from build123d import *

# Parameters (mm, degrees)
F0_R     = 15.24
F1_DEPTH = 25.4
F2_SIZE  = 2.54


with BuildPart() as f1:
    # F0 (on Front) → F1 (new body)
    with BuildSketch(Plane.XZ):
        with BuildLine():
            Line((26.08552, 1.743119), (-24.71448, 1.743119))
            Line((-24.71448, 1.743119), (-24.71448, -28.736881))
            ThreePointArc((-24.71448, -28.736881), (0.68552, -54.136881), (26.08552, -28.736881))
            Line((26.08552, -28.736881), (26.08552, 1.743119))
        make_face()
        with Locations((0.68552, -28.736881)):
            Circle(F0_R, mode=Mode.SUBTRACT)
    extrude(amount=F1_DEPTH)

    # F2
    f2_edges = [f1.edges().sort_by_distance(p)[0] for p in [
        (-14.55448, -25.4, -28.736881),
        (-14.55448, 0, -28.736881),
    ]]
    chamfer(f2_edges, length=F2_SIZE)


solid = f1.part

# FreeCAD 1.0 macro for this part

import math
import FreeCAD as App
import Part
import Sketcher
from FreeCAD import Vector
Q = App.Units.Quantity


def edges_at(feature, points):
    """Names of the edges that pass closest to the given points."""
    edges = feature.Shape.Edges
    near = lambda p: min(range(len(edges)), key=lambda i: edges[i].distToShape(Part.Vertex(*p))[0])
    return sorted({f"Edge{near(p) + 1}" for p in points})

doc = App.newDocument("Part")
params = doc.addObject("Spreadsheet::Sheet", "Params")
for row, (alias, value) in enumerate([
    ("sketch1_radius", "1 in"),
    ("sketch1_diameter", "1.2 in"),
    ("sketch1_height", "1.2 in"),
    ("pad1_length", "1 in"),
    ("chamfer_size", "0.1 in"),
], start=1):
    params.set(f"A{row}", alias)
    params.set(f"B{row}", "=" + value)
    params.setAlias(f"B{row}", alias)

body = doc.addObject("PartDesign::Body", "Body")

sketch1 = doc.addObject("Sketcher::SketchObject", "Sketch")
body.addObject(sketch1)
sketch1.AttachmentSupport = (doc.XZ_Plane, [""])
sketch1.MapMode = "FlatFace"
sketch1.addGeometry(Part.LineSegment(Vector(26, 2, 0), Vector(-25, 2, 0)), False)
sketch1.addGeometry(Part.LineSegment(Vector(-25, 2, 0), Vector(-25, -29, 0)), False)
sketch1.addGeometry(Part.ArcOfCircle(Part.Circle(Vector(1, -29, 0), Vector(0, 0, 1), 25), math.radians(180), math.radians(360)), False)
sketch1.addGeometry(Part.LineSegment(Vector(26, -29, 0), Vector(26, 2, 0)), False)
sketch1.addGeometry(Part.Circle(Vector(1, -29, 0), Vector(0, 0, 1), 15), False)
sketch1.addConstraint(Sketcher.Constraint("Coincident", 0, 2, 1, 1))
sketch1.addConstraint(Sketcher.Constraint("Tangent", 1, 2, 2, 1))
sketch1.addConstraint(Sketcher.Constraint("Tangent", 2, 2, 3, 1))
sketch1.addConstraint(Sketcher.Constraint("Coincident", 3, 2, 0, 1))
sketch1.addConstraint(Sketcher.Constraint("Horizontal", 0))
sketch1.addConstraint(Sketcher.Constraint("Vertical", 1))
sketch1.addConstraint(Sketcher.Constraint("Vertical", 3))
sketch1.addConstraint(Sketcher.Constraint("Coincident", 4, 3, 2, 3))
sketch1.addConstraint(Sketcher.Constraint("Radius", 2, Q("1 in")))
sketch1.addConstraint(Sketcher.Constraint("Diameter", 4, Q("1.2 in")))
sketch1.addConstraint(Sketcher.Constraint("DistanceY", 1, 2, 1, 1, Q("1.2 in")))
sketch1.addConstraint(Sketcher.Constraint("DistanceX", -1, 1, 2, 3, Q("0.68552 mm")))
sketch1.addConstraint(Sketcher.Constraint("DistanceY", 2, 3, -1, 1, Q("28.736881 mm")))
sketch1.setExpression("Constraints[8]", "Params.sketch1_radius")
sketch1.setExpression("Constraints[9]", "Params.sketch1_diameter")
sketch1.setExpression("Constraints[10]", "Params.sketch1_height")
pad1 = doc.addObject("PartDesign::Pad", "Pad")
body.addObject(pad1)
pad1.Profile = sketch1
pad1.setExpression("Length", "Params.pad1_length")
doc.recompute()

chamfer = doc.addObject("PartDesign::Chamfer", "Chamfer")
body.addObject(chamfer)
chamfer.Base = (pad1, edges_at(pad1, [(-14.554, -25.4, -28.737), (-14.554, 0, -28.737)]))
chamfer.setExpression("Size", "Params.chamfer_size")

doc.recompute()
